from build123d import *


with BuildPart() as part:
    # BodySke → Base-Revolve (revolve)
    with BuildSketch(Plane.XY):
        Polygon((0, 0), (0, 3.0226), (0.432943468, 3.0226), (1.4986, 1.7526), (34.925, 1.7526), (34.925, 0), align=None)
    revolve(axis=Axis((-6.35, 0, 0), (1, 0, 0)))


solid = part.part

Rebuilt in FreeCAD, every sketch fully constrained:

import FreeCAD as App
import Part
import Sketcher
from FreeCAD import Vector
Q = App.Units.Quantity

doc = App.newDocument("Part")
body = doc.addObject("PartDesign::Body", "Body")

# Sketch on XY plane
sketch1 = body.newObject("Sketcher::SketchObject", "Sketch")
sketch1.AttachmentSupport = (doc.getObject("XY_Plane"), [""])
sketch1.MapMode = "FlatFace"
sketch1.addGeometry([
    Part.LineSegment(Vector(0, 3.02, 0), Vector(0, 0, 0)),  # 0
    Part.LineSegment(Vector(0, 0, 0), Vector(34.92, 0, 0)),  # 1
    Part.LineSegment(Vector(34.92, 0, 0), Vector(34.92, 1.75, 0)),  # 2
    Part.LineSegment(Vector(34.92, 1.75, 0), Vector(1.5, 1.75, 0)),  # 3
    Part.LineSegment(Vector(1.5, 1.75, 0), Vector(0.43, 3.02, 0)),  # 4
    Part.LineSegment(Vector(0.43, 3.02, 0), Vector(0, 3.02, 0)),  # 5
], False)
sketch1.addConstraint([
    Sketcher.Constraint("Coincident", 0, 2, 1, 1),
    Sketcher.Constraint("Coincident", 1, 2, 2, 1),
    Sketcher.Constraint("Coincident", 2, 2, 3, 1),
    Sketcher.Constraint("Coincident", 3, 2, 4, 1),
    Sketcher.Constraint("Coincident", 4, 2, 5, 1),
    Sketcher.Constraint("Coincident", 5, 2, 0, 1),
    Sketcher.Constraint("Vertical", 0),
    Sketcher.Constraint("Horizontal", 1),
    Sketcher.Constraint("Vertical", 2),
    Sketcher.Constraint("Horizontal", 3),
    Sketcher.Constraint("Horizontal", 5),
    Sketcher.Constraint("Coincident", 0, 2, -1, 1),
    Sketcher.Constraint("Angle", 4, Q("130 deg")),
    Sketcher.Constraint("DistanceX", 1, 1, 1, 2, Q("1.375 in")),
    Sketcher.Constraint("DistanceX", 3, 2, 3, 1, Q("1.316 in")),
    Sketcher.Constraint("DistanceY", 0, 2, 0, 1, Q("0.119 in")),
    Sketcher.Constraint("DistanceY", 2, 1, 2, 2, Q("0.069 in")),
])
revolution = body.newObject("PartDesign::Revolution", "Revolution")
revolution.Profile = sketch1
revolution.ReferenceAxis = (sketch1, ["H_Axis"])
revolution.Angle = 360

doc.recompute()
